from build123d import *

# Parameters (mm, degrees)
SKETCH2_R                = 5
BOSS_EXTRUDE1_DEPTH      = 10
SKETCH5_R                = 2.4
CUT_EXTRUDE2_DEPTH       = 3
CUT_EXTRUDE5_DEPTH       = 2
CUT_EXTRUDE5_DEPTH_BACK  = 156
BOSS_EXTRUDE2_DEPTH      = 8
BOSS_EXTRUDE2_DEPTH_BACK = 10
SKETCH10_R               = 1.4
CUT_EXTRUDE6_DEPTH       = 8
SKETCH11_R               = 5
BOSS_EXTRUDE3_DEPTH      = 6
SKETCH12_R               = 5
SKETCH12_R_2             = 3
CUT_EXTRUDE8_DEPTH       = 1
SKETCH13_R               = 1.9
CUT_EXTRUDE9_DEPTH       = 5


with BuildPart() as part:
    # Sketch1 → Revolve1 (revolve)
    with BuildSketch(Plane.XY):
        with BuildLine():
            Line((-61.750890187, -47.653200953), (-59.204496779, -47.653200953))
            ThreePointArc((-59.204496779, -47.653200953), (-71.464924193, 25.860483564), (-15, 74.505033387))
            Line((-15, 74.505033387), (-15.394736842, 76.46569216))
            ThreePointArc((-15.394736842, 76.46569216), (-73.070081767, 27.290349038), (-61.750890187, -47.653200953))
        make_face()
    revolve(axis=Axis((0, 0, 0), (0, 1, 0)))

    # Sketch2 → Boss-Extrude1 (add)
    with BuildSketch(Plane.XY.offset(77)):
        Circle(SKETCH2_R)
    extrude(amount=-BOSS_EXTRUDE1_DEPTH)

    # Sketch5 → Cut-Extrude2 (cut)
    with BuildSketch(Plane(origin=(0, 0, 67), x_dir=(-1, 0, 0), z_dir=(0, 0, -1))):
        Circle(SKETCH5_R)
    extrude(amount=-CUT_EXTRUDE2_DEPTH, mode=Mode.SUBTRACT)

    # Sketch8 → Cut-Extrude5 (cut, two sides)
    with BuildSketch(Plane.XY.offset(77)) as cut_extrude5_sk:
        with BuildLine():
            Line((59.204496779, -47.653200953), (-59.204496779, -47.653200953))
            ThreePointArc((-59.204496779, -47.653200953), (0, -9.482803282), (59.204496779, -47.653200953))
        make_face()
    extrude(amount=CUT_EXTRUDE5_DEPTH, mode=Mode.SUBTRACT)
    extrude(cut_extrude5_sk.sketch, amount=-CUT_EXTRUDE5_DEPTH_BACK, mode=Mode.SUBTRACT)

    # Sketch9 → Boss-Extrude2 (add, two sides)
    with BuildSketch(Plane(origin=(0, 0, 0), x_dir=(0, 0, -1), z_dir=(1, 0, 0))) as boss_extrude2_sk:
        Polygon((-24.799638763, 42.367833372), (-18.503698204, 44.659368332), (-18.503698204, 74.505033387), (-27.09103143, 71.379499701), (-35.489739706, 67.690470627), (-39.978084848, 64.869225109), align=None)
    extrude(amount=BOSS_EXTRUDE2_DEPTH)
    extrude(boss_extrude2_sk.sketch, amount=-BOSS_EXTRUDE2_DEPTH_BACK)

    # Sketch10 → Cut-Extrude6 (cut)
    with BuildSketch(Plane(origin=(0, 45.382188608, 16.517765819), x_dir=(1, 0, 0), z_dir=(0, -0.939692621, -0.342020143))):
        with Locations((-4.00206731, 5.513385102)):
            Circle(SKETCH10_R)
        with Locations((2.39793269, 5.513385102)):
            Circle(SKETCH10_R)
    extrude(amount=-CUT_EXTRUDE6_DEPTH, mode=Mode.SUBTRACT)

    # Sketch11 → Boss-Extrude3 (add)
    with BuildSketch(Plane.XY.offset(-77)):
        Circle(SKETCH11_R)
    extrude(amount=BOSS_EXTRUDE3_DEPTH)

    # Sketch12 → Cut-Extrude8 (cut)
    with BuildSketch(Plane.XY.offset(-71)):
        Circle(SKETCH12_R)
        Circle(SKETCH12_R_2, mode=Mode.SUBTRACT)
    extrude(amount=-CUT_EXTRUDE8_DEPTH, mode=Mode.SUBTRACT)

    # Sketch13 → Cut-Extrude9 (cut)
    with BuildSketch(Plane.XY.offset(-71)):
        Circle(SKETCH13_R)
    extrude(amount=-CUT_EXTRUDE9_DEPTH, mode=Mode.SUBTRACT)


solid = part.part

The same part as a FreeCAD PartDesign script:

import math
import FreeCAD as App
import Part
import Sketcher
from FreeCAD import Vector
Q = App.Units.Quantity


def add_polygon(sketch, points):
    """Adds a closed chain of lines whose ends are joined by coincident constraints."""
    first, n = sketch.GeometryCount, len(points)
    for a, b in zip(points, points[1:] + points[:1]):
        sketch.addGeometry(Part.LineSegment(App.Vector(*a, 0), App.Vector(*b, 0)), False)
    for i in range(n):
        sketch.addConstraint(Sketcher.Constraint("Coincident", first + i, 2, first + (i + 1) % n, 1))

doc = App.newDocument("Part")
body = doc.addObject("PartDesign::Body", "Body")

sketch1 = doc.addObject("Sketcher::SketchObject", "Sketch")
body.addObject(sketch1)
sketch1.AttachmentSupport = (doc.XY_Plane, [""])
sketch1.MapMode = "FlatFace"
sketch1.addGeometry(Part.LineSegment(Vector(-61.75089, -47.653201, 0), Vector(-59.204497, -47.653201, 0)), False)
sketch1.addGeometry(Part.ArcOfCircle(Part.Circle(Vector(0, 0, 0), Vector(0, 0, 1), 76), math.radians(101.383113), math.radians(218.830295)), False)
sketch1.addGeometry(Part.LineSegment(Vector(-15, 74.505033, 0), Vector(-15.394737, 76.465692, 0)), False)
sketch1.addGeometry(Part.ArcOfCircle(Part.Circle(Vector(0, 0, 0), Vector(0, 0, 1), 78), math.radians(101.383113), math.radians(217.657392)), False)
sketch1.addConstraint(Sketcher.Constraint("Coincident", 0, 2, 1, 2))
sketch1.addConstraint(Sketcher.Constraint("Coincident", 1, 1, 2, 1))
sketch1.addConstraint(Sketcher.Constraint("Coincident", 2, 2, 3, 1))
sketch1.addConstraint(Sketcher.Constraint("Coincident", 3, 2, 0, 1))
sketch1.addConstraint(Sketcher.Constraint("Horizontal", 0))
sketch1.addConstraint(Sketcher.Constraint("Coincident", 1, 3, -1, 1))
sketch1.addConstraint(Sketcher.Constraint("Coincident", 3, 3, -1, 1))
sketch1.addConstraint(Sketcher.Constraint("Radius", 1, Q("76 mm")))
sketch1.addConstraint(Sketcher.Constraint("Radius", 3, Q("78 mm")))
sketch1.addConstraint(Sketcher.Constraint("DistanceX", 1, 1, -1, 1, Q("15 mm")))
sketch1.addConstraint(Sketcher.Constraint("DistanceY", 0, 2, -1, 1, Q("47.653201 mm")))
sketch1.addConstraint(Sketcher.Constraint("DistanceY", 1, 1, 2, 2, Q("1.960659 mm")))
revolution = doc.addObject("PartDesign::Revolution", "Revolution")
body.addObject(revolution)
revolution.Profile = sketch1
revolution.ReferenceAxis = (sketch1, ["V_Axis"])
revolution.Angle = 360

sketch2 = doc.addObject("Sketcher::SketchObject", "Sketch001")
body.addObject(sketch2)
sketch2.AttachmentSupport = (doc.XY_Plane, [""])
sketch2.MapMode = "FlatFace"
sketch2.AttachmentOffset = App.Placement(Vector(0, 0, 77), App.Rotation())
sketch2.addGeometry(Part.Circle(Vector(0, 0, 0), Vector(0, 0, 1), 5), False)
sketch2.addConstraint(Sketcher.Constraint("Coincident", 0, 3, -1, 1))
sketch2.addConstraint(Sketcher.Constraint("Diameter", 0, Q("10 mm")))
pad1 = doc.addObject("PartDesign::Pad", "Pad")
body.addObject(pad1)
pad1.Profile = sketch2
pad1.Length = 10
pad1.Reversed = True

sketch3 = doc.addObject("Sketcher::SketchObject", "Sketch002")
body.addObject(sketch3)
sketch3.AttachmentSupport = (doc.XY_Plane, [""])
sketch3.MapMode = "FlatFace"
sketch3.AttachmentOffset = App.Placement(Vector(0, 0, 67), App.Rotation())
sketch3.addGeometry(Part.Circle(Vector(0, 0, 0), Vector(0, 0, 1), 2.4), False)
sketch3.addConstraint(Sketcher.Constraint("Coincident", 0, 3, -1, 1))
sketch3.addConstraint(Sketcher.Constraint("Diameter", 0, Q("4.8 mm")))
pocket1 = doc.addObject("PartDesign::Pocket", "Pocket")
body.addObject(pocket1)
pocket1.Profile = sketch3
pocket1.Length = 3
pocket1.Reversed = True

sketch4 = doc.addObject("Sketcher::SketchObject", "Sketch003")
body.addObject(sketch4)
sketch4.AttachmentSupport = (doc.XY_Plane, [""])
sketch4.MapMode = "FlatFace"
sketch4.AttachmentOffset = App.Placement(Vector(0, 0, 77), App.Rotation())
sketch4.addGeometry(Part.LineSegment(Vector(-59.204497, -47.653201, 0), Vector(59.204497, -47.653201, 0)), False)
sketch4.addGeometry(Part.ArcOfCircle(Part.Circle(Vector(0, -74.482803, 0), Vector(0, 0, 1), 65), math.radians(24.378528), math.radians(155.621472)), False)
sketch4.addConstraint(Sketcher.Constraint("Coincident", 0, 1, 1, 2))
sketch4.addConstraint(Sketcher.Constraint("Coincident", 1, 1, 0, 2))
sketch4.addConstraint(Sketcher.Constraint("Horizontal", 0))
sketch4.addConstraint(Sketcher.Constraint("PointOnObject", 1, 3, -2))
sketch4.addConstraint(Sketcher.Constraint("Radius", 1, Q("65 mm")))
sketch4.addConstraint(Sketcher.Constraint("DistanceY", 0, 1, -1, 1, Q("47.653201 mm")))
sketch4.addConstraint(Sketcher.Constraint("DistanceX", 0, 1, 0, 2, Q("118.408994 mm")))
pocket2 = doc.addObject("PartDesign::Pocket", "Pocket001")
body.addObject(pocket2)
pocket2.Profile = sketch4
pocket2.Type = "ThroughAll"
pocket2.Midplane = True

sketch5 = doc.addObject("Sketcher::SketchObject", "Sketch004")
body.addObject(sketch5)
sketch5.AttachmentSupport = (doc.YZ_Plane, [""])
sketch5.MapMode = "FlatFace"
add_polygon(sketch5, [(42.367833, 24.799639), (44.659368, 18.503698), (74.505033, 18.503698), (71.3795, 27.091031), (67.690471, 35.48974), (64.869225, 39.978085)])
sketch5.addConstraint(Sketcher.Constraint("Horizontal", 1))
sketch5.addConstraint(Sketcher.Constraint("Parallel", 0, 2))
sketch5.addConstraint(Sketcher.Constraint("Angle", 0, Q("-70 deg")))
sketch5.addConstraint(Sketcher.Constraint("Distance", 0, Q("6.7 mm")))
sketch5.addConstraint(Sketcher.Constraint("DistanceY", -1, 1, 0, 2, Q("18.503698 mm")))
sketch5.addConstraint(Sketcher.Constraint("DistanceX", -1, 1, 2, 2, Q("71.3795 mm")))
sketch5.addConstraint(Sketcher.Constraint("DistanceY", 5, 2, 3, 2, Q("10.690101 mm")))
sketch5.addConstraint(Sketcher.Constraint("DistanceX", 5, 2, 1, 2, Q("32.1372 mm")))
sketch5.addConstraint(Sketcher.Constraint("Distance", 2, Q("9.138449 mm")))
sketch5.addConstraint(Sketcher.Constraint("Distance", 3, Q("9.17318 mm")))
sketch5.addConstraint(Sketcher.Constraint("Distance", 5, Q("27.142179 mm")))
sketch5.addConstraint(Sketcher.Constraint("DistanceX", 4, 2, 1, 2, Q("9.635808 mm")))
pad2 = doc.addObject("PartDesign::Pad", "Pad001")
body.addObject(pad2)
pad2.Profile = sketch5
pad2.Type = "TwoLengths"
pad2.Length = 8
pad2.Length2 = 10

sketch6 = doc.addObject("Sketcher::SketchObject", "Sketch005")
body.addObject(sketch6)
sketch6.Placement = App.Placement(Vector(0, 45.382189, 16.517766), App.Rotation(Vector(1, 0, 0), Vector(0, -0.342020143, 0.939692621), Vector(0, -0.939692621, -0.342020143), "ZXY"))
sketch6.addGeometry(Part.Circle(Vector(-4.002067, 5.513385, 0), Vector(0, 0, 1), 1.4), False)
sketch6.addGeometry(Part.Circle(Vector(2.397933, 5.513385, 0), Vector(0, 0, 1), 1.4), False)
sketch6.addConstraint(Sketcher.Constraint("Equal", 0, 1))
sketch6.addConstraint(Sketcher.Constraint("Horizontal", 0, 3, 1, 3))
sketch6.addConstraint(Sketcher.Constraint("Diameter", 0, Q("2.8 mm")))
sketch6.addConstraint(Sketcher.Constraint("DistanceX", 0, 3, 1, 3, Q("6.4 mm")))
sketch6.addConstraint(Sketcher.Constraint("DistanceX", 0, 3, -1, 1, Q("4.002067 mm")))
sketch6.addConstraint(Sketcher.Constraint("DistanceY", -1, 1, 0, 3, Q("5.513385 mm")))
pocket3 = doc.addObject("PartDesign::Pocket", "Pocket002")
body.addObject(pocket3)
pocket3.Profile = sketch6
pocket3.Length = 8

sketch7 = doc.addObject("Sketcher::SketchObject", "Sketch006")
body.addObject(sketch7)
sketch7.AttachmentSupport = (doc.XY_Plane, [""])
sketch7.MapMode = "FlatFace"
sketch7.AttachmentOffset = App.Placement(Vector(0, 0, -77), App.Rotation())
sketch7.addGeometry(Part.Circle(Vector(0, 0, 0), Vector(0, 0, 1), 5), False)
sketch7.addConstraint(Sketcher.Constraint("Coincident", 0, 3, -1, 1))
sketch7.addConstraint(Sketcher.Constraint("Diameter", 0, Q("10 mm")))
pad3 = doc.addObject("PartDesign::Pad", "Pad002")
body.addObject(pad3)
pad3.Profile = sketch7
pad3.Length = 6

sketch8 = doc.addObject("Sketcher::SketchObject", "Sketch007")
body.addObject(sketch8)
sketch8.AttachmentSupport = (doc.XY_Plane, [""])
sketch8.MapMode = "FlatFace"
sketch8.AttachmentOffset = App.Placement(Vector(0, 0, -71), App.Rotation())
sketch8.addGeometry(Part.Circle(Vector(0, 0, 0), Vector(0, 0, 1), 5), False)
sketch8.addGeometry(Part.Circle(Vector(0, 0, 0), Vector(0, 0, 1), 3), False)
sketch8.addConstraint(Sketcher.Constraint("Coincident", 0, 3, -1, 1))
sketch8.addConstraint(Sketcher.Constraint("Coincident", 1, 3, -1, 1))
sketch8.addConstraint(Sketcher.Constraint("Diameter", 0, Q("10 mm")))
sketch8.addConstraint(Sketcher.Constraint("Diameter", 1, Q("6 mm")))
pocket4 = doc.addObject("PartDesign::Pocket", "Pocket003")
body.addObject(pocket4)
pocket4.Profile = sketch8
pocket4.Length = 1

sketch9 = doc.addObject("Sketcher::SketchObject", "Sketch008")
body.addObject(sketch9)
sketch9.AttachmentSupport = (doc.XY_Plane, [""])
sketch9.MapMode = "FlatFace"
sketch9.AttachmentOffset = App.Placement(Vector(0, 0, -71), App.Rotation())
sketch9.addGeometry(Part.Circle(Vector(0, 0, 0), Vector(0, 0, 1), 1.9), False)
sketch9.addConstraint(Sketcher.Constraint("Coincident", 0, 3, -1, 1))
sketch9.addConstraint(Sketcher.Constraint("Diameter", 0, Q("3.8 mm")))
pocket5 = doc.addObject("PartDesign::Pocket", "Pocket004")
body.addObject(pocket5)
pocket5.Profile = sketch9
pocket5.Length = 5

doc.recompute()
